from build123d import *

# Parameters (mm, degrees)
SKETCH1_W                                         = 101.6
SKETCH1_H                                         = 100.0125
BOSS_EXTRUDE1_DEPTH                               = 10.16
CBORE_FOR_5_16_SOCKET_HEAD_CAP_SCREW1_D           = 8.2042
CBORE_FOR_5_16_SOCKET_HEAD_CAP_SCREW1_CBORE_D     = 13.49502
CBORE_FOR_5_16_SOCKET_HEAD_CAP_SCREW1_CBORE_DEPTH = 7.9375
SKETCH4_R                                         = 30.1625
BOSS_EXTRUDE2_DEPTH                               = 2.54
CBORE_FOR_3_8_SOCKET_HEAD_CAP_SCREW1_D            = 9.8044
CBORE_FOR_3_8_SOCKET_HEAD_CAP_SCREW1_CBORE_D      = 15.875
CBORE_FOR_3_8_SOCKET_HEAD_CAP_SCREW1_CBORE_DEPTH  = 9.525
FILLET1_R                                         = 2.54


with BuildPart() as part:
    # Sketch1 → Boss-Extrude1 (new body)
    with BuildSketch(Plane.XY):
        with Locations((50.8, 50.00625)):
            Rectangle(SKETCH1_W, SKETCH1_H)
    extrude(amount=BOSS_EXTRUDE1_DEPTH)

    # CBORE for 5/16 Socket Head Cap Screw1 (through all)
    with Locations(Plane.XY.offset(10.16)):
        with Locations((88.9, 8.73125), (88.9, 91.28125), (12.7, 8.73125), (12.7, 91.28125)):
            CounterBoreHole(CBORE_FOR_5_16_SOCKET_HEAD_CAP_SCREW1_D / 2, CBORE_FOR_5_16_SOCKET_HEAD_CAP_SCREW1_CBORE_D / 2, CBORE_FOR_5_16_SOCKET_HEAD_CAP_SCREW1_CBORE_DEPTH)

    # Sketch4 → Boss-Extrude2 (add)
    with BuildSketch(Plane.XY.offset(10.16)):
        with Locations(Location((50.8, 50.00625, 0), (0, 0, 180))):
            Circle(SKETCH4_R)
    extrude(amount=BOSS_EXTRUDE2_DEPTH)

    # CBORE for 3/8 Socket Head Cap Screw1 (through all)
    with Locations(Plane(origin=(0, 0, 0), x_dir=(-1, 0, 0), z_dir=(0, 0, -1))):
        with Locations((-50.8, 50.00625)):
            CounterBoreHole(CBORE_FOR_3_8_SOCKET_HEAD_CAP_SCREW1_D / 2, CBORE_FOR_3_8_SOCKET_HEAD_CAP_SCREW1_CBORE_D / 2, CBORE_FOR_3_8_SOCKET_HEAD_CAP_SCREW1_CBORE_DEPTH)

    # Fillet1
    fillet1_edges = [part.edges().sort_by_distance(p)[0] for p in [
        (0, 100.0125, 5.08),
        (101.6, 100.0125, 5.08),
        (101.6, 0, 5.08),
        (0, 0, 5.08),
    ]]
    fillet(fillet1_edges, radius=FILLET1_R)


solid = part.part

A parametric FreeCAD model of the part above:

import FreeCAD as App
import Part
import Sketcher

V = App.Vector
Q = App.Units.Quantity


def edges_at(feature, points):
    """Names of the edges that pass closest to the given points."""
    edges = feature.Shape.Edges
    near = lambda p: min(range(len(edges)), key=lambda i: edges[i].distToShape(Part.Vertex(*p))[0])
    return sorted({f"Edge{near(p) + 1}" for p in points})


def add_polygon(sketch, points):
    """Adds a closed chain of lines whose ends are joined by coincident constraints."""
    first, n = sketch.GeometryCount, len(points)
    for a, b in zip(points, points[1:] + points[:1]):
        sketch.addGeometry(Part.LineSegment(App.Vector(*a, 0), App.Vector(*b, 0)), False)
    for i in range(n):
        sketch.addConstraint(Sketcher.Constraint("Coincident", first + i, 2, first + (i + 1) % n, 1))

doc = App.newDocument("Part")
body = doc.addObject("PartDesign::Body", "Body")

sketch1 = doc.addObject("Sketcher::SketchObject", "Sketch")
body.addObject(sketch1)
sketch1.AttachmentSupport = (doc.XY_Plane, [""])
sketch1.MapMode = "FlatFace"
add_polygon(sketch1, [(0, 100), (0, 0), (102, 0), (102, 100)])
sketch1.addConstraint([
    Sketcher.Constraint("Vertical", 0),
    Sketcher.Constraint("Horizontal", 1),
    Sketcher.Constraint("Vertical", 2),
    Sketcher.Constraint("Horizontal", 3),
    Sketcher.Constraint("Coincident", 0, 2, -1, 1),
    Sketcher.Constraint("DistanceX", 1, 1, 1, 2, Q("4 in")),
    Sketcher.Constraint("DistanceY", 0, 2, 0, 1, Q("3.9375 in")),
])
pad1 = doc.addObject("PartDesign::Pad", "Pad")
body.addObject(pad1)
pad1.Profile = sketch1
pad1.Length = Q("0.4 in")

sketch2 = doc.addObject("Sketcher::SketchObject", "Sketch001")
body.addObject(sketch2)
sketch2.AttachmentSupport = (doc.XY_Plane, [""])
sketch2.MapMode = "FlatFace"
sketch2.AttachmentOffset = App.Placement(V(0, 0, 0.4 * 25.4), App.Rotation())
sketch2.addGeometry([
    Part.Circle(V(88.9, 8.7, 0), V(0, 0, 1), 4.1),
    Part.Circle(V(88.9, 91.3, 0), V(0, 0, 1), 4.1),
    Part.Circle(V(12.7, 8.7, 0), V(0, 0, 1), 4.1),
    Part.Circle(V(12.7, 91.3, 0), V(0, 0, 1), 4.1),
], False)
sketch2.addConstraint([
    Sketcher.Constraint("Equal", 0, 1),
    Sketcher.Constraint("Equal", 1, 2),
    Sketcher.Constraint("Equal", 2, 3),
    Sketcher.Constraint("Horizontal", 0, 3, 2, 3),
    Sketcher.Constraint("Horizontal", 1, 3, 3, 3),
    Sketcher.Constraint("Vertical", 0, 3, 1, 3),
    Sketcher.Constraint("Vertical", 2, 3, 3, 3),
    Sketcher.Constraint("Diameter", 0, Q("0.323 in")),
    Sketcher.Constraint("DistanceX", 2, 3, 0, 3, Q("3 in")),
    Sketcher.Constraint("DistanceX", -1, 1, 0, 3, Q("3.5 in")),
    Sketcher.Constraint("DistanceY", 0, 3, 1, 3, Q("3.25 in")),
    Sketcher.Constraint("DistanceY", -1, 1, 0, 3, Q("0.34375 in")),
])
doc.recompute()
hole = doc.addObject("PartDesign::Hole", "Hole")
body.addObject(hole)
hole.Profile = sketch2
hole.ThreadType = "None"
hole.Diameter = Q("0.323 in")
hole.DepthType = "ThroughAll"
hole.HoleCutType = "Counterbore"
hole.HoleCutDiameter = Q("0.5313 in")
hole.HoleCutDepth = Q("0.3125 in")

sketch3 = doc.addObject("Sketcher::SketchObject", "Sketch002")
body.addObject(sketch3)
sketch3.AttachmentSupport = (doc.XY_Plane, [""])
sketch3.MapMode = "FlatFace"
sketch3.AttachmentOffset = App.Placement(V(0, 0, 0.4 * 25.4), App.Rotation())
sketch3.addGeometry(Part.Circle(V(51, 50, 0), V(0, 0, 1), 30), False)
sketch3.addConstraint([
    Sketcher.Constraint("Diameter", 0, Q("2.375 in")),
    Sketcher.Constraint("DistanceX", -1, 1, 0, 3, Q("2 in")),
    Sketcher.Constraint("DistanceY", -1, 1, 0, 3, Q("1.96875 in")),
])
pad2 = doc.addObject("PartDesign::Pad", "Pad001")
body.addObject(pad2)
pad2.Profile = sketch3
pad2.Length = Q("0.1 in")

sketch4 = doc.addObject("Sketcher::SketchObject", "Sketch003")
body.addObject(sketch4)
sketch4.AttachmentSupport = (doc.XY_Plane, [""])
sketch4.MapMode = "FlatFace"
sketch4.addGeometry(Part.Circle(V(50.8, 50, 0), V(0, 0, 1), 4.9), False)
sketch4.addConstraint([
    Sketcher.Constraint("Diameter", 0, Q("0.386 in")),
    Sketcher.Constraint("DistanceX", -1, 1, 0, 3, Q("2 in")),
    Sketcher.Constraint("DistanceY", -1, 1, 0, 3, Q("1.96875 in")),
])
doc.recompute()
hole2 = doc.addObject("PartDesign::Hole", "Hole001")
body.addObject(hole2)
hole2.Profile = sketch4
hole2.ThreadType = "None"
hole2.Diameter = Q("0.386 in")
hole2.DepthType = "ThroughAll"
hole2.HoleCutType = "Counterbore"
hole2.HoleCutDiameter = Q("0.625 in")
hole2.HoleCutDepth = Q("0.375 in")
hole2.Reversed = True
doc.recompute()

fillet = doc.addObject("PartDesign::Fillet", "Fillet")
body.addObject(fillet)
fillet.Base = (hole2, edges_at(hole2, [
    (0, 100.013, 5.08),
    (101.6, 100.013, 5.08),
    (101.6, 0, 5.08),
    (0, 0, 5.08),
]))
fillet.Radius = Q("0.1 in")

doc.recompute()
